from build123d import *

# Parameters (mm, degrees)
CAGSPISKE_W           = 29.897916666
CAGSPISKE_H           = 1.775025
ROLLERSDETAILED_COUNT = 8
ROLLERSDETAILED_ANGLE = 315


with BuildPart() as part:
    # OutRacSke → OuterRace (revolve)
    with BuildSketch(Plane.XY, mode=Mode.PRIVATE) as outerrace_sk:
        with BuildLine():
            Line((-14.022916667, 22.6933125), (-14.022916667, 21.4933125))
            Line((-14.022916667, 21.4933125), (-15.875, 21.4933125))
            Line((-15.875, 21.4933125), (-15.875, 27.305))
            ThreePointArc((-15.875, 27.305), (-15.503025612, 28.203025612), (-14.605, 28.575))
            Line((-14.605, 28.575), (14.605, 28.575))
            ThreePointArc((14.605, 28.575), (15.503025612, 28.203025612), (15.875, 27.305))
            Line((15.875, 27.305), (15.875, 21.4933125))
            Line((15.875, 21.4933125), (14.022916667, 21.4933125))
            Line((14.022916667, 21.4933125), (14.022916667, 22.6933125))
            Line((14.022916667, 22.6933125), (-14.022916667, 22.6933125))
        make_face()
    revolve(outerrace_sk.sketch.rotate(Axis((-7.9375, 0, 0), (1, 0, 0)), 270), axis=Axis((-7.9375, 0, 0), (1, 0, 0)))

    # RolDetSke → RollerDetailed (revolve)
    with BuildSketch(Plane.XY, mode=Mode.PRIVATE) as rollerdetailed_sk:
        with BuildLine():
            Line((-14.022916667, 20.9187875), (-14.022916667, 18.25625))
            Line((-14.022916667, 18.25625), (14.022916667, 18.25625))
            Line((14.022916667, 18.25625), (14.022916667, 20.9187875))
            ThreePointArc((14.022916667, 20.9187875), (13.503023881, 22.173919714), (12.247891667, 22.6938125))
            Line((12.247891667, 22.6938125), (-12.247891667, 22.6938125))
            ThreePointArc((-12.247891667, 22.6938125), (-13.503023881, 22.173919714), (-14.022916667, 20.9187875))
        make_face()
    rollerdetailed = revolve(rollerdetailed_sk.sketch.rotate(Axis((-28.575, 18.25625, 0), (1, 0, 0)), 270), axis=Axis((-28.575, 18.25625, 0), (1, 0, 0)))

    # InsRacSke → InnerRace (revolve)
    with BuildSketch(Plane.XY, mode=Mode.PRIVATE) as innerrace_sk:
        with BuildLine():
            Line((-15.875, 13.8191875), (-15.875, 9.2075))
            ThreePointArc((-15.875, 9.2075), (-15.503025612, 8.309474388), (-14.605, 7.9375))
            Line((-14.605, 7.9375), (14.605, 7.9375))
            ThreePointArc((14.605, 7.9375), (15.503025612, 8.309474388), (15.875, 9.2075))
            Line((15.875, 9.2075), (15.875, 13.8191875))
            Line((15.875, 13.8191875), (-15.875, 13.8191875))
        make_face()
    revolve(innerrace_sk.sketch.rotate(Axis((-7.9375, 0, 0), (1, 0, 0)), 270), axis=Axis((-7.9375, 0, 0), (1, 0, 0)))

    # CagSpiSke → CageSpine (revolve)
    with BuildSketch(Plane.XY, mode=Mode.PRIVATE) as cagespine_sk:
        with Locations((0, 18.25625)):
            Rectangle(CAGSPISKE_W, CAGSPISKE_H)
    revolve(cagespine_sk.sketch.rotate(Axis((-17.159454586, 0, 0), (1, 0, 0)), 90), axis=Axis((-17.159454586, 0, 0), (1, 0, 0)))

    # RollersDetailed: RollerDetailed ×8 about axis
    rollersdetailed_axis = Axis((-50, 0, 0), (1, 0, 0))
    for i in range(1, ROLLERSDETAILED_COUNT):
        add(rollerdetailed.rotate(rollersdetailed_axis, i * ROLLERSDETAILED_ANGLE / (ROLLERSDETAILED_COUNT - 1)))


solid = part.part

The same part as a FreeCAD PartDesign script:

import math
import FreeCAD as App
import Part
import Sketcher
from FreeCAD import Vector
Q = App.Units.Quantity

doc = App.newDocument("Part")
body = doc.addObject("PartDesign::Body", "Body")

sketch1 = doc.addObject("Sketcher::SketchObject", "Sketch")
body.addObject(sketch1)
sketch1.AttachmentSupport = (doc.XY_Plane, [""])
sketch1.MapMode = "FlatFace"
sketch1.addGeometry([
    Part.LineSegment(Vector(-14, 21.5, 0), Vector(-14, 22.7, 0)),
    Part.LineSegment(Vector(-14, 22.7, 0), Vector(14, 22.7, 0)),
    Part.LineSegment(Vector(14, 22.7, 0), Vector(14, 21.5, 0)),
    Part.LineSegment(Vector(14, 21.5, 0), Vector(15.9, 21.5, 0)),
    Part.LineSegment(Vector(15.9, 21.5, 0), Vector(15.9, 27.3, 0)),
    Part.ArcOfCircle(Part.Circle(Vector(14.6, 27.3, 0), Vector(0, 0, 1), 1.3), math.radians(0), math.radians(90)),
    Part.LineSegment(Vector(14.6, 28.6, 0), Vector(-14.6, 28.6, 0)),
    Part.ArcOfCircle(Part.Circle(Vector(-14.6, 27.3, 0), Vector(0, 0, 1), 1.3), math.radians(90), math.radians(180)),
    Part.LineSegment(Vector(-15.9, 27.3, 0), Vector(-15.9, 21.5, 0)),
    Part.LineSegment(Vector(-15.9, 21.5, 0), Vector(-14, 21.5, 0)),
], False)
sketch1.addConstraint([
    Sketcher.Constraint("Coincident", 0, 2, 1, 1),
    Sketcher.Constraint("Coincident", 1, 2, 2, 1),
    Sketcher.Constraint("Coincident", 2, 2, 3, 1),
    Sketcher.Constraint("Coincident", 3, 2, 4, 1),
    Sketcher.Constraint("Tangent", 4, 2, 5, 1),
    Sketcher.Constraint("Tangent", 5, 2, 6, 1),
    Sketcher.Constraint("Tangent", 6, 2, 7, 1),
    Sketcher.Constraint("Tangent", 7, 2, 8, 1),
    Sketcher.Constraint("Coincident", 8, 2, 9, 1),
    Sketcher.Constraint("Coincident", 9, 2, 0, 1),
    Sketcher.Constraint("Vertical", 0),
    Sketcher.Constraint("Horizontal", 1),
    Sketcher.Constraint("Vertical", 2),
    Sketcher.Constraint("Horizontal", 3),
    Sketcher.Constraint("Vertical", 4),
    Sketcher.Constraint("Horizontal", 6),
    Sketcher.Constraint("Vertical", 8),
    Sketcher.Constraint("Horizontal", 9),
    Sketcher.Constraint("Equal", 5, 7),
    Sketcher.Constraint("Symmetric", 3, 2, 8, 2, -2),
    Sketcher.Constraint("Equal", 3, 9),
    Sketcher.Constraint("Radius", 5, Q("0.05 in")),
    Sketcher.Constraint("DistanceX", 6, 2, 6, 1, Q("1.15 in")),
    Sketcher.Constraint("DistanceY", -1, 1, 5, 3, Q("1.075 in")),
    Sketcher.Constraint("DistanceY", 0, 1, 0, 2, 1.2),
    Sketcher.Constraint("DistanceX", 1, 1, 1, 2, 28.045833),
    Sketcher.Constraint("DistanceY", 4, 1, 4, 2, 5.811688),
])
revolution = doc.addObject("PartDesign::Revolution", "Revolution")
body.addObject(revolution)
revolution.Profile = sketch1
revolution.ReferenceAxis = (sketch1, ["H_Axis"])
revolution.Angle = 360

sketch2 = doc.addObject("Sketcher::SketchObject", "Sketch001")
body.addObject(sketch2)
sketch2.AttachmentSupport = (doc.XY_Plane, [""])
sketch2.MapMode = "FlatFace"
sketch2.addGeometry([
    Part.LineSegment(Vector(-14, 20.9, 0), Vector(-14, 18.3, 0)),
    Part.LineSegment(Vector(-14, 18.3, 0), Vector(14, 18.3, 0)),
    Part.LineSegment(Vector(14, 18.3, 0), Vector(14, 20.9, 0)),
    Part.ArcOfCircle(Part.Circle(Vector(12.2, 20.9, 0), Vector(0, 0, 1), 1.8), math.radians(0), math.radians(90)),
    Part.LineSegment(Vector(12.2, 22.7, 0), Vector(-12.2, 22.7, 0)),
    Part.ArcOfCircle(Part.Circle(Vector(-12.2, 20.9, 0), Vector(0, 0, 1), 1.8), math.radians(90), math.radians(180)),
], False)
sketch2.addGeometry(Part.LineSegment(Vector(-14, 18.3, 0), Vector(14, 18.3, 0)), True)
sketch2.addConstraint([
    Sketcher.Constraint("Coincident", 0, 2, 1, 1),
    Sketcher.Constraint("Coincident", 1, 2, 2, 1),
    Sketcher.Constraint("Tangent", 2, 2, 3, 1),
    Sketcher.Constraint("Tangent", 3, 2, 4, 1),
    Sketcher.Constraint("Tangent", 4, 2, 5, 1),
    Sketcher.Constraint("Tangent", 5, 2, 0, 1),
    Sketcher.Constraint("Vertical", 0),
    Sketcher.Constraint("Horizontal", 1),
    Sketcher.Constraint("Vertical", 2),
    Sketcher.Constraint("Horizontal", 4),
    Sketcher.Constraint("Horizontal", 6),
    Sketcher.Constraint("Coincident", 6, 1, 0, 2),
    Sketcher.Constraint("Equal", 3, 5),
    Sketcher.Constraint("Vertical", 2, 2, 6, 2),
    Sketcher.Constraint("DistanceY", -1, 1, 0, 2, Q("0.71875 in")),
    Sketcher.Constraint("Radius", 3, 1.775025),
    Sketcher.Constraint("DistanceX", 1, 1, 1, 2, 28.045833),
    Sketcher.Constraint("DistanceY", 0, 2, 0, 1, 2.662537),
    Sketcher.Constraint("DistanceX", -1, 1, 3, 3, 12.247892),
])
revolution2 = doc.addObject("PartDesign::Revolution", "Revolution001")
body.addObject(revolution2)
revolution2.Profile = sketch2
revolution2.ReferenceAxis = (sketch2, ["Axis0"])
revolution2.Angle = 360

sketch3 = doc.addObject("Sketcher::SketchObject", "Sketch002")
body.addObject(sketch3)
sketch3.AttachmentSupport = (doc.XY_Plane, [""])
sketch3.MapMode = "FlatFace"
sketch3.addGeometry([
    Part.LineSegment(Vector(-15.9, 13.8, 0), Vector(-15.9, 9.2, 0)),
    Part.ArcOfCircle(Part.Circle(Vector(-14.6, 9.2, 0), Vector(0, 0, 1), 1.3), math.radians(180), math.radians(270)),
    Part.LineSegment(Vector(-14.6, 7.9, 0), Vector(14.6, 7.9, 0)),
    Part.ArcOfCircle(Part.Circle(Vector(14.6, 9.2, 0), Vector(0, 0, 1), 1.3), math.radians(-90), math.radians(0)),
    Part.LineSegment(Vector(15.9, 9.2, 0), Vector(15.9, 13.8, 0)),
    Part.LineSegment(Vector(15.9, 13.8, 0), Vector(-15.9, 13.8, 0)),
], False)
sketch3.addConstraint([
    Sketcher.Constraint("Tangent", 0, 2, 1, 1),
    Sketcher.Constraint("Tangent", 1, 2, 2, 1),
    Sketcher.Constraint("Tangent", 2, 2, 3, 1),
    Sketcher.Constraint("Tangent", 3, 2, 4, 1),
    Sketcher.Constraint("Coincident", 4, 2, 5, 1),
    Sketcher.Constraint("Coincident", 5, 2, 0, 1),
    Sketcher.Constraint("Vertical", 0),
    Sketcher.Constraint("Horizontal", 2),
    Sketcher.Constraint("Vertical", 4),
    Sketcher.Constraint("Horizontal", 5),
    Sketcher.Constraint("Equal", 1, 3),
    Sketcher.Constraint("Radius", 1, Q("0.05 in")),
    Sketcher.Constraint("DistanceX", 2, 1, 2, 2, Q("1.15 in")),
    Sketcher.Constraint("DistanceX", 1, 3, -1, 1, Q("0.575 in")),
    Sketcher.Constraint("DistanceY", -1, 1, 1, 2, Q("0.3125 in")),
    Sketcher.Constraint("DistanceY", 0, 2, 0, 1, 4.611688),
])
revolution3 = doc.addObject("PartDesign::Revolution", "Revolution002")
body.addObject(revolution3)
revolution3.Profile = sketch3
revolution3.ReferenceAxis = (sketch3, ["H_Axis"])
revolution3.Angle = 360

sketch4 = doc.addObject("Sketcher::SketchObject", "Sketch003")
body.addObject(sketch4)
sketch4.AttachmentSupport = (doc.XY_Plane, [""])
sketch4.MapMode = "FlatFace"
sketch4.addGeometry([
    Part.LineSegment(Vector(-14.9, 19.1, 0), Vector(-14.9, 17.4, 0)),
    Part.LineSegment(Vector(-14.9, 17.4, 0), Vector(14.9, 17.4, 0)),
    Part.LineSegment(Vector(14.9, 17.4, 0), Vector(14.9, 19.1, 0)),
    Part.LineSegment(Vector(14.9, 19.1, 0), Vector(-14.9, 19.1, 0)),
], False)
sketch4.addConstraint([
    Sketcher.Constraint("Coincident", 0, 2, 1, 1),
    Sketcher.Constraint("Coincident", 1, 2, 2, 1),
    Sketcher.Constraint("Coincident", 2, 2, 3, 1),
    Sketcher.Constraint("Coincident", 3, 2, 0, 1),
    Sketcher.Constraint("Vertical", 0),
    Sketcher.Constraint("Horizontal", 1),
    Sketcher.Constraint("Vertical", 2),
    Sketcher.Constraint("Horizontal", 3),
    Sketcher.Constraint("DistanceX", 1, 1, 1, 2, 29.897917),
    Sketcher.Constraint("DistanceY", 0, 2, 0, 1, 1.775025),
    Sketcher.Constraint("DistanceX", 0, 2, -1, 1, 14.948958),
    Sketcher.Constraint("DistanceY", -1, 1, 0, 2, 17.368738),
])
revolution4 = doc.addObject("PartDesign::Revolution", "Revolution003")
body.addObject(revolution4)
revolution4.Profile = sketch4
revolution4.ReferenceAxis = (sketch4, ["H_Axis"])
revolution4.Angle = 360
doc.recompute()

polarpattern = doc.addObject("PartDesign::PolarPattern", "PolarPattern")
body.addObject(polarpattern)
polarpattern.Originals = [revolution2]
polarpattern.Axis = (doc.X_Axis, [""])
polarpattern.Angle = 360
polarpattern.Occurrences = 8
body.Tip = polarpattern

doc.recompute()
